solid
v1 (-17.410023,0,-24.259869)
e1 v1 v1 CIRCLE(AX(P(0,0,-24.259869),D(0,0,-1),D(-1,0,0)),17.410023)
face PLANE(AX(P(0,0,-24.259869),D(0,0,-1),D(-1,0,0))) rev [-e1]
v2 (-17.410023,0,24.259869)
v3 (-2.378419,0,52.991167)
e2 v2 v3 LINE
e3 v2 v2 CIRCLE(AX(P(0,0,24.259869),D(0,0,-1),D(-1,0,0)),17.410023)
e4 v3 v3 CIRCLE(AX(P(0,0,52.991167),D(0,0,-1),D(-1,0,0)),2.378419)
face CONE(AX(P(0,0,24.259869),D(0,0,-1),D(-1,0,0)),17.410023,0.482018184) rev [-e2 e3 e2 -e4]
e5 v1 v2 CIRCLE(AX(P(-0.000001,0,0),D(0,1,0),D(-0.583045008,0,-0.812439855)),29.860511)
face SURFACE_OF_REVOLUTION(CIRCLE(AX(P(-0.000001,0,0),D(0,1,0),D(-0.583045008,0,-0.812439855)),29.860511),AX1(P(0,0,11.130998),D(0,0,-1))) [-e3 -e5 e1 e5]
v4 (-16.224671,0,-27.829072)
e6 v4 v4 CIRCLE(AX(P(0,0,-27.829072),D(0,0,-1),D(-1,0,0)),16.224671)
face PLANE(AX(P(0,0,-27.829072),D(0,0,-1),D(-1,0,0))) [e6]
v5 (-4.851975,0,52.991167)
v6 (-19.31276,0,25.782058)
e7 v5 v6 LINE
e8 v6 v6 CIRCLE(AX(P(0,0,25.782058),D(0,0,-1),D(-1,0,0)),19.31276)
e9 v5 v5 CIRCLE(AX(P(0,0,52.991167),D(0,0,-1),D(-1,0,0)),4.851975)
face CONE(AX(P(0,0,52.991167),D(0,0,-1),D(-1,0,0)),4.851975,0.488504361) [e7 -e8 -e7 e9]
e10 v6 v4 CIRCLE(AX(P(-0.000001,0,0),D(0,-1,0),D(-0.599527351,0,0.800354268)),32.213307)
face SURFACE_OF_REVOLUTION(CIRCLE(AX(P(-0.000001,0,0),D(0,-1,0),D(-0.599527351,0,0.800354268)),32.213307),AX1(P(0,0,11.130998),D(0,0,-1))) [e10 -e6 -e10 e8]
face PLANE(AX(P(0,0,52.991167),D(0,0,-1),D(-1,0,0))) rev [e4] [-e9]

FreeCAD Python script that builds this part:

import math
import FreeCAD as App
import Part
import Sketcher

V = App.Vector

doc = App.newDocument("Part")
params = doc.addObject("Spreadsheet::Sheet", "Params")
for row, (alias, value) in enumerate([
    ("revolution_angle", "360 deg"),
], start=1):
    params.set(f"A{row}", alias)
    params.set(f"B{row}", "=" + value)
    params.setAlias(f"B{row}", alias)

body = doc.addObject("PartDesign::Body", "Body")

sketch1 = doc.addObject("Sketcher::SketchObject", "Sketch")
body.addObject(sketch1)
sketch1.AttachmentSupport = (doc.XZ_Plane, [""])
sketch1.MapMode = "FlatFace"
sketch1.addGeometry([
    Part.LineSegment(V(-4.9, 53, 0), V(-19.3, 25.8, 0)),
    Part.ArcOfCircle(Part.Circle(V(0, 0, 0), V(0, 0, 1), 32.2), math.radians(127), math.radians(240)),
    Part.LineSegment(V(-16.2, -27.8, 0), V(0, -27.8, 0)),
    Part.LineSegment(V(0, -27.8, 0), V(0, -24.3, 0)),
    Part.LineSegment(V(0, -24.3, 0), V(-17.4, -24.3, 0)),
    Part.ArcOfCircle(Part.Circle(V(0, 0, 0), V(0, 0, 1), 29.9), math.radians(126), math.radians(234)),
    Part.LineSegment(V(-17.4, 24.3, 0), V(-2.4, 53, 0)),
    Part.LineSegment(V(-2.4, 53, 0), V(-4.9, 53, 0)),
], False)
sketch1.addConstraint([
    Sketcher.Constraint("Coincident", 0, 2, 1, 1),
    Sketcher.Constraint("Coincident", 1, 2, 2, 1),
    Sketcher.Constraint("Coincident", 2, 2, 3, 1),
    Sketcher.Constraint("Coincident", 3, 2, 4, 1),
    Sketcher.Constraint("Coincident", 4, 2, 5, 2),
    Sketcher.Constraint("Coincident", 5, 1, 6, 1),
    Sketcher.Constraint("Coincident", 6, 2, 7, 1),
    Sketcher.Constraint("Coincident", 7, 2, 0, 1),
    Sketcher.Constraint("Horizontal", 2),
    Sketcher.Constraint("Vertical", 3),
    Sketcher.Constraint("Horizontal", 4),
    Sketcher.Constraint("Horizontal", 7),
    Sketcher.Constraint("Coincident", 1, 3, -1, 1),
    Sketcher.Constraint("Coincident", 5, 3, -1, 1),
    Sketcher.Constraint("PointOnObject", 2, 2, -2),
    Sketcher.Constraint("Vertical", 4, 2, 5, 1),
    Sketcher.Constraint("Radius", 5, 29.860511),
    Sketcher.Constraint("Radius", 1, 32.213307),
    Sketcher.Constraint("DistanceX", 2, 1, 2, 2, 16.224671),
    Sketcher.Constraint("DistanceY", 5, 1, 6, 2, 28.731298),
    Sketcher.Constraint("DistanceX", 4, 2, 4, 1, 17.410023),
    Sketcher.Constraint("DistanceX", 7, 2, 7, 1, 2.473556),
    Sketcher.Constraint("DistanceX", 0, 2, -1, 1, 19.31276),
    Sketcher.Constraint("DistanceX", 6, 2, -1, 1, 2.378419),
])
revolution = doc.addObject("PartDesign::Revolution", "Revolution")
body.addObject(revolution)
revolution.Profile = sketch1
revolution.ReferenceAxis = (sketch1, ["V_Axis"])
revolution.setExpression("Angle", "Params.revolution_angle")

doc.recompute()
